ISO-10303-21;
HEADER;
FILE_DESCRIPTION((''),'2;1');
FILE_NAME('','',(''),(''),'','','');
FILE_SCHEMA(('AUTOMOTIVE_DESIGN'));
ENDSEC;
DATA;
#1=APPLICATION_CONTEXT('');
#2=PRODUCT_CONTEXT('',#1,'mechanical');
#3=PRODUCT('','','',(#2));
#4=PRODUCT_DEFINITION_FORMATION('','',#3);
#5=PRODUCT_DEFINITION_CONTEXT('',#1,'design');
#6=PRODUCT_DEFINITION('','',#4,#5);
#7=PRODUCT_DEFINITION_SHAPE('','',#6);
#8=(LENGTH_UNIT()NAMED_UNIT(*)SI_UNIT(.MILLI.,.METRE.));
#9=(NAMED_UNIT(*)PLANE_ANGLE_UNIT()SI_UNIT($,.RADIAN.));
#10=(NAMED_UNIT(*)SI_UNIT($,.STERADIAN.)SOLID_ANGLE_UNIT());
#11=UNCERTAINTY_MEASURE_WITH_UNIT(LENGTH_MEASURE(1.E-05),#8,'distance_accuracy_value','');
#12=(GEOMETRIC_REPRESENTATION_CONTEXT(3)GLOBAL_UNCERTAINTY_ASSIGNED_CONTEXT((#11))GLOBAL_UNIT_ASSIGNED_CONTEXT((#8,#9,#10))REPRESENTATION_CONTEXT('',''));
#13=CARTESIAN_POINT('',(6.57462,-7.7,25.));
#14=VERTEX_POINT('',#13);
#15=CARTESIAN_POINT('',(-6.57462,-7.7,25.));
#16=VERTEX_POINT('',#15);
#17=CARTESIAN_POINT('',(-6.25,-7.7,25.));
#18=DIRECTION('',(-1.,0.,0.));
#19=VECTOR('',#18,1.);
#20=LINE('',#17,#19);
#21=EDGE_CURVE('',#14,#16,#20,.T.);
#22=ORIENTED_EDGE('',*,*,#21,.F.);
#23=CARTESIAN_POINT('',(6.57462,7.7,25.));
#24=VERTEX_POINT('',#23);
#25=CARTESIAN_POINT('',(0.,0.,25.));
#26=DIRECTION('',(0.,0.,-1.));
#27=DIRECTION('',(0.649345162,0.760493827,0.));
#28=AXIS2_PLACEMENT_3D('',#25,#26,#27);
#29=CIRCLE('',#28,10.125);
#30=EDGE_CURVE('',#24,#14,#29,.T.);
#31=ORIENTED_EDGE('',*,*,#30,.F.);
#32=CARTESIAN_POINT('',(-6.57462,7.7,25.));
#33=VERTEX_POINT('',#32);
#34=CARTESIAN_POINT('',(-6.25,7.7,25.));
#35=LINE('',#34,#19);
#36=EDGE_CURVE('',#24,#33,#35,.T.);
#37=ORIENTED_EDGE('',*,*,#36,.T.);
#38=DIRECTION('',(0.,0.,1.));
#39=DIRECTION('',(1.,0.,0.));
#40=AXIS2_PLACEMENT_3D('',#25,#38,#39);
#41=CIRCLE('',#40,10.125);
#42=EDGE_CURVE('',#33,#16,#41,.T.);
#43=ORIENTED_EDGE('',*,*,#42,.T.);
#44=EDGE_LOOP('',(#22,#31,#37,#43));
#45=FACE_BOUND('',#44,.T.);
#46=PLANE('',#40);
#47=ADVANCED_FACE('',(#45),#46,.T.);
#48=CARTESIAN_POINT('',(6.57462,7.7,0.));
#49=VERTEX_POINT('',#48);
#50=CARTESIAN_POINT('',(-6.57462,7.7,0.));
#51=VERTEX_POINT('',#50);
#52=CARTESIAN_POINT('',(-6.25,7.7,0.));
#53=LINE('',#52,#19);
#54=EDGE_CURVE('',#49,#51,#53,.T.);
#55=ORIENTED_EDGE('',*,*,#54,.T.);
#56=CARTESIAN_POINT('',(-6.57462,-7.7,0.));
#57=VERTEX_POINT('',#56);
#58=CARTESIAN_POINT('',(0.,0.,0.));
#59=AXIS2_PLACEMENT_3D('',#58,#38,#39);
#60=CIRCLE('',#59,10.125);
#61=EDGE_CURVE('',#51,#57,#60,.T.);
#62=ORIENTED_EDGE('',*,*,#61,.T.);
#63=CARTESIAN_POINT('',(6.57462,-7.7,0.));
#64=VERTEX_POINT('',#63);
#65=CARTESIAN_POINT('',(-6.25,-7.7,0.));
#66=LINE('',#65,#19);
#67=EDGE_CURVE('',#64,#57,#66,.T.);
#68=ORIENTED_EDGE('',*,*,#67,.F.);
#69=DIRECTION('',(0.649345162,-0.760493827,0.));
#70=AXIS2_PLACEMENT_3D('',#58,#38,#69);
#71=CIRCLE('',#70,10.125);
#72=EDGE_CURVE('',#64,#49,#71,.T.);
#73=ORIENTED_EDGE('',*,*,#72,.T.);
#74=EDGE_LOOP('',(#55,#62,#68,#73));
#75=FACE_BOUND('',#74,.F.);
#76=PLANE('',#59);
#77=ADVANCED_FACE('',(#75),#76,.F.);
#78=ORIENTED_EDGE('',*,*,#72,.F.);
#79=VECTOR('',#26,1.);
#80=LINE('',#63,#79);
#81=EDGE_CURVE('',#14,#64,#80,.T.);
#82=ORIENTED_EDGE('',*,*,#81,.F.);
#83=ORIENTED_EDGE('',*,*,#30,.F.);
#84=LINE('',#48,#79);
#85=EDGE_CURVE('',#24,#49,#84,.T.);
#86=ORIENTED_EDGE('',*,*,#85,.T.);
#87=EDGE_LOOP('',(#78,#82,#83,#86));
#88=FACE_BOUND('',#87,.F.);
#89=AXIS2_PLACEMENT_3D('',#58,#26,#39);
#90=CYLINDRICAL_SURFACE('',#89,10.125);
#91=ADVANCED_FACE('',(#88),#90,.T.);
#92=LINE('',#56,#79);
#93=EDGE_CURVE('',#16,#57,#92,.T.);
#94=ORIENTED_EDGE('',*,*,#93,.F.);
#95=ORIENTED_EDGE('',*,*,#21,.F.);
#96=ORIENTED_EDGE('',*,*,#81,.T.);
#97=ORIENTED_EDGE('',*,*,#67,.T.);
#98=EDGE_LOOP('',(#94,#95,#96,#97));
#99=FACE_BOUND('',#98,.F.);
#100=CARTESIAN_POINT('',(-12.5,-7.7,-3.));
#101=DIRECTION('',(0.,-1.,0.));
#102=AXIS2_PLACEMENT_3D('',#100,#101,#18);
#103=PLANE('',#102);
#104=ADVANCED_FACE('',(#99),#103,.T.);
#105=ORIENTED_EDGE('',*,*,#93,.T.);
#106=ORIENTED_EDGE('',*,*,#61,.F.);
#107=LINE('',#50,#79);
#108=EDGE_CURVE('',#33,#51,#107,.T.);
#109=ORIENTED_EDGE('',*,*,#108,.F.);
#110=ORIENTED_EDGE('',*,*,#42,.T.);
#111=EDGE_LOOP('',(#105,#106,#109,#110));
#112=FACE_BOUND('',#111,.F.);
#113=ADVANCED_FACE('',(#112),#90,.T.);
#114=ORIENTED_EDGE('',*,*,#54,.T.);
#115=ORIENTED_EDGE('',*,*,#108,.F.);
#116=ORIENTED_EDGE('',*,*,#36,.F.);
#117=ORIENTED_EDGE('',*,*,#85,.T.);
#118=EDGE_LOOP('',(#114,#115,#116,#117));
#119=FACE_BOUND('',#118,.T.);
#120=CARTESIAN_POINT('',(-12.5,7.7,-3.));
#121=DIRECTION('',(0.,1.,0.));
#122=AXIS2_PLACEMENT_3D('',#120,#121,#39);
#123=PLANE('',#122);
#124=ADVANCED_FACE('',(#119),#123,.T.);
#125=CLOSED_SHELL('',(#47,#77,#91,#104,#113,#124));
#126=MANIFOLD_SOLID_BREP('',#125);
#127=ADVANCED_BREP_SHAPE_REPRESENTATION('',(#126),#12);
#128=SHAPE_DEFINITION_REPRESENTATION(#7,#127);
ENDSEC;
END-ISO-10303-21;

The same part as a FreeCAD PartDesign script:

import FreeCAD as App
import Part
import Sketcher
from FreeCAD import Vector
Q = App.Units.Quantity


def add_polygon(sketch, points):
    """Adds a closed chain of lines whose ends are joined by coincident constraints."""
    first, n = sketch.GeometryCount, len(points)
    for a, b in zip(points, points[1:] + points[:1]):
        sketch.addGeometry(Part.LineSegment(App.Vector(*a, 0), App.Vector(*b, 0)), False)
    for i in range(n):
        sketch.addConstraint(Sketcher.Constraint("Coincident", first + i, 2, first + (i + 1) % n, 1))

doc = App.newDocument("Part")
params = doc.addObject("Spreadsheet::Sheet", "Params")
for row, (alias, value) in enumerate([
    ("sketch1_width", "25 mm"),
    ("sketch1_height", "10 mm"),
    ("pad1_length", "30 mm"),
    ("sketch2_diameter", "20.25 mm"),
    ("pad2_length", "25 mm"),
], start=1):
    params.set(f"A{row}", alias)
    params.set(f"B{row}", "=" + value)
    params.setAlias(f"B{row}", alias)

body = doc.addObject("PartDesign::Body", "Body")

# Sketch on XY plane
sketch1 = body.newObject("Sketcher::SketchObject", "Sketch")
sketch1.AttachmentSupport = (doc.getObject("XY_Plane"), [""])
sketch1.MapMode = "FlatFace"
sketch1.AttachmentOffset = App.Placement(Vector(0, 0, -3), App.Rotation())
add_polygon(sketch1, [(-12, 18), (-12, 8), (12, 8), (12, 18)])  # lines 0-3
sketch1.addConstraint([
    Sketcher.Constraint("Vertical", 0),
    Sketcher.Constraint("Horizontal", 1),
    Sketcher.Constraint("Vertical", 2),
    Sketcher.Constraint("Horizontal", 3),
    Sketcher.Constraint("DistanceX", 1, 1, 1, 2, Q("25 mm")),
    Sketcher.Constraint("DistanceY", 0, 2, 0, 1, Q("10 mm")),
    Sketcher.Constraint("DistanceX", 0, 2, -1, 1, Q("12.5 mm")),
    Sketcher.Constraint("DistanceY", -1, 1, 0, 2, Q("7.7 mm")),
])
sketch1.setExpression("Constraints[8]", "Params.sketch1_width")
sketch1.setExpression("Constraints[9]", "Params.sketch1_height")
pad1 = body.newObject("PartDesign::Pad", "Pad")
pad1.Profile = sketch1
pad1.setExpression("Length", "Params.pad1_length")
body2 = doc.addObject("PartDesign::Body", "Body001")
body2.AllowCompound = True
doc.recompute()

mirroring = doc.addObject("Part::Mirroring", "Mirroring")
mirroring.Source = body
mirroring.Base = Vector(0, 0, 0)
mirroring.Normal = Vector(0, 1, 0)
body2.BaseFeature = mirroring
doc.recompute()

boolean = body2.newObject("PartDesign::Boolean", "Boolean")
boolean.Type = "Fuse"
boolean.addObjects([body])
body3 = doc.addObject("PartDesign::Body", "Body002")

# Sketch on XY plane
sketch2 = body3.newObject("Sketcher::SketchObject", "Sketch001")
sketch2.AttachmentSupport = (doc.getObject("XY_Plane002"), [""])
sketch2.MapMode = "FlatFace"
sketch2.addGeometry(Part.Circle(Vector(0, 0, 0), Vector(0, 0, 1), 10), False)
sketch2.addConstraint([
    Sketcher.Constraint("Coincident", 0, 3, -1, 1),
    Sketcher.Constraint("Diameter", 0, Q("20.25 mm")),
])
sketch2.setExpression("Constraints[1]", "Params.sketch2_diameter")
pad2 = body3.newObject("PartDesign::Pad", "Pad001")
pad2.Profile = sketch2
pad2.setExpression("Length", "Params.pad2_length")
doc.recompute()

boolean2 = body3.newObject("PartDesign::Boolean", "Boolean001")
boolean2.Type = "Cut"
boolean2.addObjects([body2])
mirroring.Visibility = False

doc.recompute()
